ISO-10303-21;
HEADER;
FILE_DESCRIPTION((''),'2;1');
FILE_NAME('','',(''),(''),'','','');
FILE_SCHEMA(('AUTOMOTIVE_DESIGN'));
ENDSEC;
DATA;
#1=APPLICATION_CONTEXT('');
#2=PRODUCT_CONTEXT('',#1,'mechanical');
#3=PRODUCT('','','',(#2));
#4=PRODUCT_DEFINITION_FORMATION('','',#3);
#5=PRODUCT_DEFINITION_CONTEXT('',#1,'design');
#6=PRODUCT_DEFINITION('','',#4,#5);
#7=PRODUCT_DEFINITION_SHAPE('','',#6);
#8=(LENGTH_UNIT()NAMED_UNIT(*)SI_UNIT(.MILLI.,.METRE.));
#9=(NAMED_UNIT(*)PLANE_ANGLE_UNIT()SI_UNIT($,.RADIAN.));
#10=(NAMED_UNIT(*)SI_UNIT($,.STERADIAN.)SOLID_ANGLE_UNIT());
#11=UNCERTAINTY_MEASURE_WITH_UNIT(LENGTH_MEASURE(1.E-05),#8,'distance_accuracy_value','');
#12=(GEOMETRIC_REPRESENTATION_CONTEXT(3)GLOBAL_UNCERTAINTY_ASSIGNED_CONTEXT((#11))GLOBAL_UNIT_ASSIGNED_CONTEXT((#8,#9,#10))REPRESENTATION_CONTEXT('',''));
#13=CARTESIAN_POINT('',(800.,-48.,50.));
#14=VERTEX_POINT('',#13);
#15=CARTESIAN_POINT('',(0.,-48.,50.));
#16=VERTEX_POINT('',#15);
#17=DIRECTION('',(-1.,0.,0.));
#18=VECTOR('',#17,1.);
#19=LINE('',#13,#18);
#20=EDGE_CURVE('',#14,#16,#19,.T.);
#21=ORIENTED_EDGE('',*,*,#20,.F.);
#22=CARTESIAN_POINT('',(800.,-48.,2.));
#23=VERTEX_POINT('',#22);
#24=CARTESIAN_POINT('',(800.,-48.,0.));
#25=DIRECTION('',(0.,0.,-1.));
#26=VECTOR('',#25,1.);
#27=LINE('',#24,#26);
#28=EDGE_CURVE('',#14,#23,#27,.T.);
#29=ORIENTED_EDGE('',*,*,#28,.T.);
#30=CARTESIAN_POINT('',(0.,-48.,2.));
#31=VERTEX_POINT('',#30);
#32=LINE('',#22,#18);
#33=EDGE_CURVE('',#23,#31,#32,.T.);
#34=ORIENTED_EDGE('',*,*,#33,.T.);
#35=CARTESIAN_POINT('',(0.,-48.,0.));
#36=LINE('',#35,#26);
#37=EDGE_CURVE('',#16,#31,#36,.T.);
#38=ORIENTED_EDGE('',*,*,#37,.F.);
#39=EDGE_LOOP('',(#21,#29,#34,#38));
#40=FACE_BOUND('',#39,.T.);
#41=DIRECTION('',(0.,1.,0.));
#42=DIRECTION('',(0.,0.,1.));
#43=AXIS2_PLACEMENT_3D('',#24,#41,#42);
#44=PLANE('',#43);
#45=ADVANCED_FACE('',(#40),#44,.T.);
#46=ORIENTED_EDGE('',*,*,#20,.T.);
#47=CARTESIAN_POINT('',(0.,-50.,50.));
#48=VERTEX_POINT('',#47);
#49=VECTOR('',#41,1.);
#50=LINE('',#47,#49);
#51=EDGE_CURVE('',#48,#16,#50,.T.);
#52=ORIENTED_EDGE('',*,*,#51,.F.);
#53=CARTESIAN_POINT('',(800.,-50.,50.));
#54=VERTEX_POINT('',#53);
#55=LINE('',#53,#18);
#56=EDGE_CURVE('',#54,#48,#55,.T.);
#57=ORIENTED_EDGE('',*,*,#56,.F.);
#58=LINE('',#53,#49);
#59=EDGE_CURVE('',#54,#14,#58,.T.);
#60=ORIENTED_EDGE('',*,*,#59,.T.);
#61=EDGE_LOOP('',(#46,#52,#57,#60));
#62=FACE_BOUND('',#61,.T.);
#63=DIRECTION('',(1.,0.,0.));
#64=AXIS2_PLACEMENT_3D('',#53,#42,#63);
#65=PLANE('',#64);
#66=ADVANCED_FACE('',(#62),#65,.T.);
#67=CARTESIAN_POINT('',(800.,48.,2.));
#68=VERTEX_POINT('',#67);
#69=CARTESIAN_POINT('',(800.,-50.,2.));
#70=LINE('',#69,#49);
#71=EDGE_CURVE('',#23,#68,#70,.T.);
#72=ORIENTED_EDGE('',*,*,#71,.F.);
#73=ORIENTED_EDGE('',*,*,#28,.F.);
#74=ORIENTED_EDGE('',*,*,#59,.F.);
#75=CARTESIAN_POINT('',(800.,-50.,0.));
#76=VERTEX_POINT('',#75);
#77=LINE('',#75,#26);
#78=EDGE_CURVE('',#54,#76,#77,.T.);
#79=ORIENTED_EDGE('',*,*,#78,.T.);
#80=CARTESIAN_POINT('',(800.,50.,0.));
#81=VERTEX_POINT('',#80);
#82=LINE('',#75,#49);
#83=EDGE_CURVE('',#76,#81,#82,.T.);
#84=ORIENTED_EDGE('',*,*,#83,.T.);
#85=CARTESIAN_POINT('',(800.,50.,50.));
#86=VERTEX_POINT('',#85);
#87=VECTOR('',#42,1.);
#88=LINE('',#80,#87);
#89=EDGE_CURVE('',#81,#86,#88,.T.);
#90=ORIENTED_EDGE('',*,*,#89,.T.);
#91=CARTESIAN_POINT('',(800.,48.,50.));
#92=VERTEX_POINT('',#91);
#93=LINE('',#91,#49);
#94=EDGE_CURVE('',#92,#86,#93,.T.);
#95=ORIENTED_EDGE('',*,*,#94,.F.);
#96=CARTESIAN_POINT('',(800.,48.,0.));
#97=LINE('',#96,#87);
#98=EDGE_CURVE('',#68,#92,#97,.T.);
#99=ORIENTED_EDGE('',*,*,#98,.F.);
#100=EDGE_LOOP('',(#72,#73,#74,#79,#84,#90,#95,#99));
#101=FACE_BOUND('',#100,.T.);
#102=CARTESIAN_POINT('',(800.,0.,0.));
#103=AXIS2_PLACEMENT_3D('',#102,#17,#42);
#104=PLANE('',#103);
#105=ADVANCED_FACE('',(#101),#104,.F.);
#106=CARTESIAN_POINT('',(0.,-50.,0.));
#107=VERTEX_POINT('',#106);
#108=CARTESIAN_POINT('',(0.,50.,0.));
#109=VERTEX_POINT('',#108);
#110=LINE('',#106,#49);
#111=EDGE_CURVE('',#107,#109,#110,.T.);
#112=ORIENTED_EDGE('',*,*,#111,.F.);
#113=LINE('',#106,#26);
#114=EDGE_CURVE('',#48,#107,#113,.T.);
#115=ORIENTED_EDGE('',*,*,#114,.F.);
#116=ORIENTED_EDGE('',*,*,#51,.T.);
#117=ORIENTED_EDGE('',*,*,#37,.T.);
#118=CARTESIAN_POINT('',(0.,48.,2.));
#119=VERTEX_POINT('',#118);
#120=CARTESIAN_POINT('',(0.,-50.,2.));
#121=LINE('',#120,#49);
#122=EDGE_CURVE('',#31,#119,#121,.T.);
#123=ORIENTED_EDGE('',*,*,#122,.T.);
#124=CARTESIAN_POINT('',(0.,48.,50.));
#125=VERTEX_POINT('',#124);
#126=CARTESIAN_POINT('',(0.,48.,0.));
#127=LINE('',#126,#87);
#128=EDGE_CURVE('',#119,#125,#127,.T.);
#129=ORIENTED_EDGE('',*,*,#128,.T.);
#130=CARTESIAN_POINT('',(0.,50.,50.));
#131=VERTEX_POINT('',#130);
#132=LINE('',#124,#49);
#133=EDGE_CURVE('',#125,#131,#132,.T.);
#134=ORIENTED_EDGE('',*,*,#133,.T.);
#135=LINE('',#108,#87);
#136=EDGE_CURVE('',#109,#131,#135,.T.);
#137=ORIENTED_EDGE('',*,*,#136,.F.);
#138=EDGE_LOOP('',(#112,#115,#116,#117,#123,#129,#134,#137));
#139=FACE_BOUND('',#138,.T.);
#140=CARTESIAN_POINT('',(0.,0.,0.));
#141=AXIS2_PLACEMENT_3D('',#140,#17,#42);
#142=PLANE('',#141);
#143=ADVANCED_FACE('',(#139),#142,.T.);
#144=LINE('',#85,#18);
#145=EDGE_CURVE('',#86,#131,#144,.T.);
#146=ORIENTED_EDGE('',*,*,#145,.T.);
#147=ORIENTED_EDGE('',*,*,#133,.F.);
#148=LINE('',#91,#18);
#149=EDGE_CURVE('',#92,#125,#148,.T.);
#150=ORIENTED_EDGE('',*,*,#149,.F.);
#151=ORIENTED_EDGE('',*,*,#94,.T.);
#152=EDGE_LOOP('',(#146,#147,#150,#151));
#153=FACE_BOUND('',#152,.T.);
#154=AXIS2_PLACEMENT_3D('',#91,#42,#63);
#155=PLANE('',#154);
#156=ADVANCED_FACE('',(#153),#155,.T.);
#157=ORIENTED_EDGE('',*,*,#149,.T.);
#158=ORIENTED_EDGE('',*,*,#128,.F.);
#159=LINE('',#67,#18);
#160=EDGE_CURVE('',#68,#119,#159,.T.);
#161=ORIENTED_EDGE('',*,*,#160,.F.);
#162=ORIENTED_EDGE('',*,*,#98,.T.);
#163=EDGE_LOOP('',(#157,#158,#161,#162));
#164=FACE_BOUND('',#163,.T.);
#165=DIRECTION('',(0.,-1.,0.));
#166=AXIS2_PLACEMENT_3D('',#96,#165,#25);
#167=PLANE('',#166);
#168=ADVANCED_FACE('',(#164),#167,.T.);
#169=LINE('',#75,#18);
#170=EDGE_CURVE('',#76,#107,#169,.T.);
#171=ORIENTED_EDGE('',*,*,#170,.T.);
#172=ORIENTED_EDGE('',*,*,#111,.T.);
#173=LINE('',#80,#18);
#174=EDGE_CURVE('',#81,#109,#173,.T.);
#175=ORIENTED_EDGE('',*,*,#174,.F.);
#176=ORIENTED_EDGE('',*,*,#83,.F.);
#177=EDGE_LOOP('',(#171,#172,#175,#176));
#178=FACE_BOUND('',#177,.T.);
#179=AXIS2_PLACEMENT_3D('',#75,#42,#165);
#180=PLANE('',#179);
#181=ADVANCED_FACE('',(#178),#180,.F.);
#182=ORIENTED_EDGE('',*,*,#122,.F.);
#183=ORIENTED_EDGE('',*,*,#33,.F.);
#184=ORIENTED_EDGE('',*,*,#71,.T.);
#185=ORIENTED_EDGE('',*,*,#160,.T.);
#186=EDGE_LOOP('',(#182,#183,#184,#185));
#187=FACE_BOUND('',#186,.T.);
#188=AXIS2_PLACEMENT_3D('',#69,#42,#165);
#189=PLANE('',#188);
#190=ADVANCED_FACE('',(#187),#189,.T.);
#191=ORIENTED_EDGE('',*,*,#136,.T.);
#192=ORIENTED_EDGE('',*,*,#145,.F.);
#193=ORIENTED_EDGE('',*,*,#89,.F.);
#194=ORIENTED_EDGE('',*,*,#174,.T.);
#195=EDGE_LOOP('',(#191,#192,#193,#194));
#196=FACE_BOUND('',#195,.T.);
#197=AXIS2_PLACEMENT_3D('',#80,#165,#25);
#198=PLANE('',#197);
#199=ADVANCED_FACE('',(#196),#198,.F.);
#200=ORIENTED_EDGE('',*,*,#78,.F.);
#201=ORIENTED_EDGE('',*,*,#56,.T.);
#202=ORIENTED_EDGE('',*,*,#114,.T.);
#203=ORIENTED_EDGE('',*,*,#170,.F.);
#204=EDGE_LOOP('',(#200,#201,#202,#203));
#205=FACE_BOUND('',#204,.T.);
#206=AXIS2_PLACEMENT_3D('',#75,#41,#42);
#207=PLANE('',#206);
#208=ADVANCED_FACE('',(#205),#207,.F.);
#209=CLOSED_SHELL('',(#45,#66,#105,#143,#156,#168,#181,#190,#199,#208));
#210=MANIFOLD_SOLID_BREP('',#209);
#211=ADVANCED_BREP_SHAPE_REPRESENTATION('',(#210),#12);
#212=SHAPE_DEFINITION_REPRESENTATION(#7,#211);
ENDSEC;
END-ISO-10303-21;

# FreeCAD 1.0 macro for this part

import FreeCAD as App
import Part
import Sketcher

V = App.Vector

doc = App.newDocument("Part")
params = doc.addObject("Spreadsheet::Sheet", "Params")
for row, (alias, value) in enumerate([
    ("sketch1_width", "100 mm"),
    ("sketch1_width2", "2 mm"),
    ("sketch1_height", "50 mm"),
    ("sketch1_height2", "48 mm"),
    ("pad1_length", "800 mm"),
], start=1):
    params.set(f"A{row}", alias)
    params.set(f"B{row}", "=" + value)
    params.setAlias(f"B{row}", alias)

body = doc.addObject("PartDesign::Body", "Body")

# Sketch on YZ plane
sketch1 = body.newObject("Sketcher::SketchObject", "Sketch")
sketch1.AttachmentSupport = (doc.getObject("YZ_Plane"), [""])
sketch1.MapMode = "FlatFace"
sketch1.addGeometry(Part.LineSegment(V(-50, 50, 0), V(-50, 0, 0)), False)
sketch1.addGeometry(Part.LineSegment(V(-50, 0, 0), V(50, 0, 0)), False)
sketch1.addGeometry(Part.LineSegment(V(50, 0, 0), V(50, 50, 0)), False)
sketch1.addGeometry(Part.LineSegment(V(50, 50, 0), V(48, 50, 0)), False)
sketch1.addGeometry(Part.LineSegment(V(48, 50, 0), V(48, 2, 0)), False)
sketch1.addGeometry(Part.LineSegment(V(48, 2, 0), V(-48, 2, 0)), False)
sketch1.addGeometry(Part.LineSegment(V(-48, 2, 0), V(-48, 50, 0)), False)
sketch1.addGeometry(Part.LineSegment(V(-48, 50, 0), V(-50, 50, 0)), False)
sketch1.addConstraint(Sketcher.Constraint("Coincident", 0, 2, 1, 1))
sketch1.addConstraint(Sketcher.Constraint("Coincident", 1, 2, 2, 1))
sketch1.addConstraint(Sketcher.Constraint("Coincident", 2, 2, 3, 1))
sketch1.addConstraint(Sketcher.Constraint("Coincident", 3, 2, 4, 1))
sketch1.addConstraint(Sketcher.Constraint("Coincident", 4, 2, 5, 1))
sketch1.addConstraint(Sketcher.Constraint("Coincident", 5, 2, 6, 1))
sketch1.addConstraint(Sketcher.Constraint("Coincident", 6, 2, 7, 1))
sketch1.addConstraint(Sketcher.Constraint("Coincident", 7, 2, 0, 1))
sketch1.addConstraint(Sketcher.Constraint("Vertical", 0))
sketch1.addConstraint(Sketcher.Constraint("Horizontal", 1))
sketch1.addConstraint(Sketcher.Constraint("Vertical", 2))
sketch1.addConstraint(Sketcher.Constraint("Horizontal", 3))
sketch1.addConstraint(Sketcher.Constraint("Vertical", 4))
sketch1.addConstraint(Sketcher.Constraint("Horizontal", 5))
sketch1.addConstraint(Sketcher.Constraint("Vertical", 6))
sketch1.addConstraint(Sketcher.Constraint("Horizontal", 7))
sketch1.addConstraint(Sketcher.Constraint("Symmetric", 0, 2, 1, 2, -1, 1))
sketch1.addConstraint(Sketcher.Constraint("Symmetric", 3, 2, 6, 2, -2))
sketch1.addConstraint(Sketcher.Constraint("DistanceX", 1, 1, 1, 2, 100.0))
sketch1.addConstraint(Sketcher.Constraint("DistanceX", 3, 2, 3, 1, 2.0))
sketch1.addConstraint(Sketcher.Constraint("DistanceY", 0, 2, 0, 1, 50.0))
sketch1.addConstraint(Sketcher.Constraint("DistanceY", 4, 2, 4, 1, 48.0))
sketch1.setExpression("Constraints[18]", "Params.sketch1_width")
sketch1.setExpression("Constraints[19]", "Params.sketch1_width2")
sketch1.setExpression("Constraints[20]", "Params.sketch1_height")
sketch1.setExpression("Constraints[21]", "Params.sketch1_height2")
pad1 = body.newObject("PartDesign::Pad", "Pad")
pad1.Profile = sketch1
pad1.setExpression("Length", "Params.pad1_length")

doc.recompute()
